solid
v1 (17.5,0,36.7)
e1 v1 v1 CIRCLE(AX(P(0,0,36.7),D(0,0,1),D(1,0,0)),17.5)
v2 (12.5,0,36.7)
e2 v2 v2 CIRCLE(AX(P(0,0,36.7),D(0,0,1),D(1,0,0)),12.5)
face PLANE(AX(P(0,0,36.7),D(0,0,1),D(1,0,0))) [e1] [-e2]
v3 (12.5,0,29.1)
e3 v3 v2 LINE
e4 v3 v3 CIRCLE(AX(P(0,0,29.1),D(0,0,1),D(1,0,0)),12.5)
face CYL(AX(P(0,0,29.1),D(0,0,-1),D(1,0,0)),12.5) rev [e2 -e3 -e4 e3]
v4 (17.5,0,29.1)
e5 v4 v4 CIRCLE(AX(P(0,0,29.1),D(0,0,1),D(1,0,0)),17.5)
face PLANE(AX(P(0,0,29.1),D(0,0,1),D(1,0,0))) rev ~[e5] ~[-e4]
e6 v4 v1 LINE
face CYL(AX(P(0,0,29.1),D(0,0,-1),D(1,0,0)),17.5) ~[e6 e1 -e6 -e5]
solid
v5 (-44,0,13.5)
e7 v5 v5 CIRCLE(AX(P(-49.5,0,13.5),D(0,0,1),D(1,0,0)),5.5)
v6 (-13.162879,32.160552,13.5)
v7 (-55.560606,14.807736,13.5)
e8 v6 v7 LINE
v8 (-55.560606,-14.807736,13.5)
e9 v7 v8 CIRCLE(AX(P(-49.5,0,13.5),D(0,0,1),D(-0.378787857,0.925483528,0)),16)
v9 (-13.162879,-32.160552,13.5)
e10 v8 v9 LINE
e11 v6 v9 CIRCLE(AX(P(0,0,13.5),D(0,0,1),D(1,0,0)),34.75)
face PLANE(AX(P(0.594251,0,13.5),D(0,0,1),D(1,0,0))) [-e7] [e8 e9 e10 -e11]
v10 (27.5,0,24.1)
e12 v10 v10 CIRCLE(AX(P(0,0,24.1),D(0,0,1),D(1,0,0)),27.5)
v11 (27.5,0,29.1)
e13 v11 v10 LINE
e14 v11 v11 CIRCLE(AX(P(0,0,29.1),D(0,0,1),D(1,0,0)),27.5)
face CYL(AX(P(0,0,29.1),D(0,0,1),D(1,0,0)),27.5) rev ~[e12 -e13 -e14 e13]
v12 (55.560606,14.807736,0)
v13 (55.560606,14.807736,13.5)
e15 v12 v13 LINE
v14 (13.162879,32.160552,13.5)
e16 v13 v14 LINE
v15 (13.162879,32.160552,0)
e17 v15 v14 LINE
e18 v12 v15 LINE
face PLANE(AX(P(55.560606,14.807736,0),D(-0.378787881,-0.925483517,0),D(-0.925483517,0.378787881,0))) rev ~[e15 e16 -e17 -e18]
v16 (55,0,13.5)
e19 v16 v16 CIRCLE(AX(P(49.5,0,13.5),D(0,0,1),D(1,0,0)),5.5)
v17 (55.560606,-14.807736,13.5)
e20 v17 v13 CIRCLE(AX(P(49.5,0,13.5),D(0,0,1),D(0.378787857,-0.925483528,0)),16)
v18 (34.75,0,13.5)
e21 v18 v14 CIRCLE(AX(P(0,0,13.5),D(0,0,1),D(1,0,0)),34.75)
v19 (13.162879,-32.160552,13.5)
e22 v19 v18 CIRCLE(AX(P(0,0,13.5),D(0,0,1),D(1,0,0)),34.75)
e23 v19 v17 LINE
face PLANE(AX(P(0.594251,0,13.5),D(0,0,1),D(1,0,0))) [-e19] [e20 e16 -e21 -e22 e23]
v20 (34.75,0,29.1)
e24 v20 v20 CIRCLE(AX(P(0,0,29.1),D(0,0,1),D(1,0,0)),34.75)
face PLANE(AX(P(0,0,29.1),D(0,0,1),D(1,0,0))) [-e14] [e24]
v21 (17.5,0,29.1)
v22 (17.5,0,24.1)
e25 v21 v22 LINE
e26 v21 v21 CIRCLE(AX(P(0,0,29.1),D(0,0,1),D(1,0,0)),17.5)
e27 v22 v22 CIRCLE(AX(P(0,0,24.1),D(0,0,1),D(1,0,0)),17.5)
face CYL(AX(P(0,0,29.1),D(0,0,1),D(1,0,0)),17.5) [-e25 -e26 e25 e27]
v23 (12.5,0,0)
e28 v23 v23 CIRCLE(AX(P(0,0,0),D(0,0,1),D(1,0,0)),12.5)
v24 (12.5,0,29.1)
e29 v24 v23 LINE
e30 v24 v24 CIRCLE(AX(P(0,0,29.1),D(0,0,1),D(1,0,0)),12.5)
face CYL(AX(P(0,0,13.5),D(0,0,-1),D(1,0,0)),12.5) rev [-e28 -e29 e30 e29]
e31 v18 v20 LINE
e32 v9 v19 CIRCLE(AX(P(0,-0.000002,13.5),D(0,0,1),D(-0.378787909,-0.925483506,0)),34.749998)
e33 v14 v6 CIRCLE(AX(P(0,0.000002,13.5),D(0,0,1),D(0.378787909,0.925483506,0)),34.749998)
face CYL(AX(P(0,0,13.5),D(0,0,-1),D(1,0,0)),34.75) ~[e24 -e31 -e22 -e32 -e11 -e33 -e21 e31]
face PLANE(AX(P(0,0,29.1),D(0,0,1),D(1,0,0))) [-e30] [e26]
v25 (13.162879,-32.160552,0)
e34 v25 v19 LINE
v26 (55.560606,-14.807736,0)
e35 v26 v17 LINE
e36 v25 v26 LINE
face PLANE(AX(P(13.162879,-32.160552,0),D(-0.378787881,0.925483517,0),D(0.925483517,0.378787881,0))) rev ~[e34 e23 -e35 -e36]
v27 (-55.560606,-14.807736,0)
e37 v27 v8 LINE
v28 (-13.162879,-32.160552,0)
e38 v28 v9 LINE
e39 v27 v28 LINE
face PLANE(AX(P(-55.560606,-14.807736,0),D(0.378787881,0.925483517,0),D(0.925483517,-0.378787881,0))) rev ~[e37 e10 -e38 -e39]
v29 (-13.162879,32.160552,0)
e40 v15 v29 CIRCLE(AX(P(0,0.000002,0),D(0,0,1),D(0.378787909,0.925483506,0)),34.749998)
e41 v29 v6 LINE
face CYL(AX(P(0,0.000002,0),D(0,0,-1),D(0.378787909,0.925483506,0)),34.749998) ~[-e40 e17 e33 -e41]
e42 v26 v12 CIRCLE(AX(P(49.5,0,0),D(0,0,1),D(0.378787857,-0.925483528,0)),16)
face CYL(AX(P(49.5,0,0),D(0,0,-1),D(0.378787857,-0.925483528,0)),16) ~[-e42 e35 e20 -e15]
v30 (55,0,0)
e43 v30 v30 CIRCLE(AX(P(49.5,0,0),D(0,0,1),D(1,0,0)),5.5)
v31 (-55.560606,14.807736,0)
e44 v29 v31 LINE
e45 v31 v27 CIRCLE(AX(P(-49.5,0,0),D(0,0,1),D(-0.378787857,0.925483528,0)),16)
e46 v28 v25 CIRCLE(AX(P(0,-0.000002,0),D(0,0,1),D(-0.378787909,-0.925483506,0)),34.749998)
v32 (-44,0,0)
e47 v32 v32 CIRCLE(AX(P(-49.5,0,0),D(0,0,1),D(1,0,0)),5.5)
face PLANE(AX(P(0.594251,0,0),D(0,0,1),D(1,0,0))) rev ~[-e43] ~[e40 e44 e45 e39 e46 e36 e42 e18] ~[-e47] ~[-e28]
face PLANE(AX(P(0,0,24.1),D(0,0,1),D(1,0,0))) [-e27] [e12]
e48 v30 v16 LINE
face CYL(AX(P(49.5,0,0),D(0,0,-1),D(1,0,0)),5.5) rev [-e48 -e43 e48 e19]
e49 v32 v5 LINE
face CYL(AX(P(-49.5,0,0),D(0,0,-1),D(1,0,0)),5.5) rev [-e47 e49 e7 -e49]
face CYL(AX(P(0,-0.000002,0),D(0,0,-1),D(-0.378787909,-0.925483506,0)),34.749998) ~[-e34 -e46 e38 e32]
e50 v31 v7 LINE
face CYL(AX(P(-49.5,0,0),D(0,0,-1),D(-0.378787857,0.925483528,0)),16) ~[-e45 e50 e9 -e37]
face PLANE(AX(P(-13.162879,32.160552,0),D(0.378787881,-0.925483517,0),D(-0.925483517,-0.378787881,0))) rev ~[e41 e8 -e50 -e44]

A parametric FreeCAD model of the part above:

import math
import FreeCAD as App
import Part
import Sketcher

doc = App.newDocument("Part")
body = doc.addObject("PartDesign::Body", "Body")

sketch1 = body.newObject("Sketcher::SketchObject", "Sketch")
sketch1.AttachmentSupport = (doc.getObject("XY_Plane"), [""])
sketch1.MapMode = "FlatFace"
sketch1.addGeometry(Part.ArcOfCircle(Part.Circle(App.Vector(0, -0.000002, 0), App.Vector(0, 0, 1), 34.749998), math.radians(-112.258623), math.radians(-67.741377)), False)
sketch1.addGeometry(Part.LineSegment(App.Vector(13.162879, -32.160552, 0), App.Vector(55.560606, -14.807736, 0)), False)
sketch1.addGeometry(Part.ArcOfCircle(Part.Circle(App.Vector(49.5, 0, 0), App.Vector(0, 0, 1), 16), math.radians(-67.74138), math.radians(67.74138)), False)
sketch1.addGeometry(Part.LineSegment(App.Vector(55.560606, 14.807736, 0), App.Vector(13.162879, 32.160552, 0)), False)
sketch1.addGeometry(Part.ArcOfCircle(Part.Circle(App.Vector(0, 0.000002, 0), App.Vector(0, 0, 1), 34.749998), math.radians(67.741377), math.radians(112.258623)), False)
sketch1.addGeometry(Part.LineSegment(App.Vector(-13.162879, 32.160552, 0), App.Vector(-55.560606, 14.807736, 0)), False)
sketch1.addGeometry(Part.ArcOfCircle(Part.Circle(App.Vector(-49.5, 0, 0), App.Vector(0, 0, 1), 16), math.radians(112.25862), math.radians(247.74138)), False)
sketch1.addGeometry(Part.LineSegment(App.Vector(-55.560606, -14.807736, 0), App.Vector(-13.162879, -32.160552, 0)), False)
sketch1.addGeometry(Part.Circle(App.Vector(-49.5, 0, 0), App.Vector(0, 0, 1), 5.5), False)
sketch1.addGeometry(Part.Circle(App.Vector(0, 0, 0), App.Vector(0, 0, 1), 12.5), False)
sketch1.addGeometry(Part.Circle(App.Vector(49.5, 0, 0), App.Vector(0, 0, 1), 5.5), False)
sketch1.addConstraint(Sketcher.Constraint("Tangent", 0, 2, 1, 1))
sketch1.addConstraint(Sketcher.Constraint("Tangent", 1, 2, 2, 1))
sketch1.addConstraint(Sketcher.Constraint("Tangent", 2, 2, 3, 1))
sketch1.addConstraint(Sketcher.Constraint("Tangent", 3, 2, 4, 1))
sketch1.addConstraint(Sketcher.Constraint("Tangent", 4, 2, 5, 1))
sketch1.addConstraint(Sketcher.Constraint("Tangent", 5, 2, 6, 1))
sketch1.addConstraint(Sketcher.Constraint("Tangent", 6, 2, 7, 1))
sketch1.addConstraint(Sketcher.Constraint("Tangent", 7, 2, 0, 1))
sketch1.addConstraint(Sketcher.Constraint("Coincident", 0, 3, -1, 1))
sketch1.addConstraint(Sketcher.Constraint("Coincident", 4, 3, -1, 1))
sketch1.addConstraint(Sketcher.Constraint("Coincident", 9, 3, -1, 1))
sketch1.addConstraint(Sketcher.Constraint("Coincident", 8, 3, 6, 3))
sketch1.addConstraint(Sketcher.Constraint("Coincident", 10, 3, 2, 3))
sketch1.addConstraint(Sketcher.Constraint("Equal", 0, 4))
sketch1.addConstraint(Sketcher.Constraint("Equal", 2, 6))
sketch1.addConstraint(Sketcher.Constraint("Equal", 8, 10))
sketch1.addConstraint(Sketcher.Constraint("Symmetric", 2, 3, 6, 3, -1, 1))
sketch1.addConstraint(Sketcher.Constraint("PointOnObject", 2, 3, -1))
sketch1.addConstraint(Sketcher.Constraint("Diameter", 8, 11.0))
sketch1.addConstraint(Sketcher.Constraint("Diameter", 9, 25.0))
sketch1.addConstraint(Sketcher.Constraint("Radius", 2, 16.0))
sketch1.addConstraint(Sketcher.Constraint("DistanceX", 6, 3, 2, 3, 99.000001))
sketch1.addConstraint(Sketcher.Constraint("Radius", 0, 34.749998))
pad1 = body.newObject("PartDesign::Pad", "Pad")
pad1.Profile = sketch1
pad1.Length = 13.5

sketch2 = body.newObject("Sketcher::SketchObject", "Sketch001")
sketch2.AttachmentSupport = (doc.getObject("XY_Plane"), [""])
sketch2.MapMode = "FlatFace"
sketch2.AttachmentOffset = App.Placement(App.Vector(0, 0, 13.5), App.Rotation())
sketch2.addGeometry(Part.Circle(App.Vector(0, 0, 0), App.Vector(0, 0, 1), 34.75), False)
sketch2.addGeometry(Part.Circle(App.Vector(0, 0, 0), App.Vector(0, 0, 1), 12.5), False)
sketch2.addConstraint(Sketcher.Constraint("Coincident", 0, 3, -1, 1))
sketch2.addConstraint(Sketcher.Constraint("Coincident", 1, 3, -1, 1))
sketch2.addConstraint(Sketcher.Constraint("Diameter", 1, 25.0))
sketch2.addConstraint(Sketcher.Constraint("Diameter", 0, 69.5))
pad2 = body.newObject("PartDesign::Pad", "Pad001")
pad2.Profile = sketch2
pad2.Length = 15.6

sketch3 = body.newObject("Sketcher::SketchObject", "Sketch002")
sketch3.AttachmentSupport = (doc.getObject("XY_Plane"), [""])
sketch3.MapMode = "FlatFace"
sketch3.AttachmentOffset = App.Placement(App.Vector(0, 0, 29.1), App.Rotation())
sketch3.addGeometry(Part.Circle(App.Vector(0, 0, 0), App.Vector(0, 0, 1), 27.5), False)
sketch3.addGeometry(Part.Circle(App.Vector(0, 0, 0), App.Vector(0, 0, 1), 17.5), False)
sketch3.addConstraint(Sketcher.Constraint("Coincident", 0, 3, -1, 1))
sketch3.addConstraint(Sketcher.Constraint("Coincident", 1, 3, -1, 1))
sketch3.addConstraint(Sketcher.Constraint("Diameter", 0, 55.0))
sketch3.addConstraint(Sketcher.Constraint("Diameter", 1, 35.0))
pocket1 = body.newObject("PartDesign::Pocket", "Pocket")
pocket1.Profile = sketch3
pocket1.Length = 5
body2 = doc.addObject("PartDesign::Body", "Body001")

sketch4 = body2.newObject("Sketcher::SketchObject", "Sketch003")
sketch4.AttachmentSupport = (doc.getObject("XY_Plane001"), [""])
sketch4.MapMode = "FlatFace"
sketch4.AttachmentOffset = App.Placement(App.Vector(0, 0, 29.1), App.Rotation())
sketch4.addGeometry(Part.Circle(App.Vector(0, 0, 0), App.Vector(0, 0, 1), 17.5), False)
sketch4.addGeometry(Part.Circle(App.Vector(0, 0, 0), App.Vector(0, 0, 1), 12.5), False)
sketch4.addConstraint(Sketcher.Constraint("Coincident", 0, 3, -1, 1))
sketch4.addConstraint(Sketcher.Constraint("Coincident", 1, 3, -1, 1))
sketch4.addConstraint(Sketcher.Constraint("Diameter", 0, 35.0))
sketch4.addConstraint(Sketcher.Constraint("Diameter", 1, 25.0))
pad3 = body2.newObject("PartDesign::Pad", "Pad002")
pad3.Profile = sketch4
pad3.Length = 7.6

doc.recompute()
